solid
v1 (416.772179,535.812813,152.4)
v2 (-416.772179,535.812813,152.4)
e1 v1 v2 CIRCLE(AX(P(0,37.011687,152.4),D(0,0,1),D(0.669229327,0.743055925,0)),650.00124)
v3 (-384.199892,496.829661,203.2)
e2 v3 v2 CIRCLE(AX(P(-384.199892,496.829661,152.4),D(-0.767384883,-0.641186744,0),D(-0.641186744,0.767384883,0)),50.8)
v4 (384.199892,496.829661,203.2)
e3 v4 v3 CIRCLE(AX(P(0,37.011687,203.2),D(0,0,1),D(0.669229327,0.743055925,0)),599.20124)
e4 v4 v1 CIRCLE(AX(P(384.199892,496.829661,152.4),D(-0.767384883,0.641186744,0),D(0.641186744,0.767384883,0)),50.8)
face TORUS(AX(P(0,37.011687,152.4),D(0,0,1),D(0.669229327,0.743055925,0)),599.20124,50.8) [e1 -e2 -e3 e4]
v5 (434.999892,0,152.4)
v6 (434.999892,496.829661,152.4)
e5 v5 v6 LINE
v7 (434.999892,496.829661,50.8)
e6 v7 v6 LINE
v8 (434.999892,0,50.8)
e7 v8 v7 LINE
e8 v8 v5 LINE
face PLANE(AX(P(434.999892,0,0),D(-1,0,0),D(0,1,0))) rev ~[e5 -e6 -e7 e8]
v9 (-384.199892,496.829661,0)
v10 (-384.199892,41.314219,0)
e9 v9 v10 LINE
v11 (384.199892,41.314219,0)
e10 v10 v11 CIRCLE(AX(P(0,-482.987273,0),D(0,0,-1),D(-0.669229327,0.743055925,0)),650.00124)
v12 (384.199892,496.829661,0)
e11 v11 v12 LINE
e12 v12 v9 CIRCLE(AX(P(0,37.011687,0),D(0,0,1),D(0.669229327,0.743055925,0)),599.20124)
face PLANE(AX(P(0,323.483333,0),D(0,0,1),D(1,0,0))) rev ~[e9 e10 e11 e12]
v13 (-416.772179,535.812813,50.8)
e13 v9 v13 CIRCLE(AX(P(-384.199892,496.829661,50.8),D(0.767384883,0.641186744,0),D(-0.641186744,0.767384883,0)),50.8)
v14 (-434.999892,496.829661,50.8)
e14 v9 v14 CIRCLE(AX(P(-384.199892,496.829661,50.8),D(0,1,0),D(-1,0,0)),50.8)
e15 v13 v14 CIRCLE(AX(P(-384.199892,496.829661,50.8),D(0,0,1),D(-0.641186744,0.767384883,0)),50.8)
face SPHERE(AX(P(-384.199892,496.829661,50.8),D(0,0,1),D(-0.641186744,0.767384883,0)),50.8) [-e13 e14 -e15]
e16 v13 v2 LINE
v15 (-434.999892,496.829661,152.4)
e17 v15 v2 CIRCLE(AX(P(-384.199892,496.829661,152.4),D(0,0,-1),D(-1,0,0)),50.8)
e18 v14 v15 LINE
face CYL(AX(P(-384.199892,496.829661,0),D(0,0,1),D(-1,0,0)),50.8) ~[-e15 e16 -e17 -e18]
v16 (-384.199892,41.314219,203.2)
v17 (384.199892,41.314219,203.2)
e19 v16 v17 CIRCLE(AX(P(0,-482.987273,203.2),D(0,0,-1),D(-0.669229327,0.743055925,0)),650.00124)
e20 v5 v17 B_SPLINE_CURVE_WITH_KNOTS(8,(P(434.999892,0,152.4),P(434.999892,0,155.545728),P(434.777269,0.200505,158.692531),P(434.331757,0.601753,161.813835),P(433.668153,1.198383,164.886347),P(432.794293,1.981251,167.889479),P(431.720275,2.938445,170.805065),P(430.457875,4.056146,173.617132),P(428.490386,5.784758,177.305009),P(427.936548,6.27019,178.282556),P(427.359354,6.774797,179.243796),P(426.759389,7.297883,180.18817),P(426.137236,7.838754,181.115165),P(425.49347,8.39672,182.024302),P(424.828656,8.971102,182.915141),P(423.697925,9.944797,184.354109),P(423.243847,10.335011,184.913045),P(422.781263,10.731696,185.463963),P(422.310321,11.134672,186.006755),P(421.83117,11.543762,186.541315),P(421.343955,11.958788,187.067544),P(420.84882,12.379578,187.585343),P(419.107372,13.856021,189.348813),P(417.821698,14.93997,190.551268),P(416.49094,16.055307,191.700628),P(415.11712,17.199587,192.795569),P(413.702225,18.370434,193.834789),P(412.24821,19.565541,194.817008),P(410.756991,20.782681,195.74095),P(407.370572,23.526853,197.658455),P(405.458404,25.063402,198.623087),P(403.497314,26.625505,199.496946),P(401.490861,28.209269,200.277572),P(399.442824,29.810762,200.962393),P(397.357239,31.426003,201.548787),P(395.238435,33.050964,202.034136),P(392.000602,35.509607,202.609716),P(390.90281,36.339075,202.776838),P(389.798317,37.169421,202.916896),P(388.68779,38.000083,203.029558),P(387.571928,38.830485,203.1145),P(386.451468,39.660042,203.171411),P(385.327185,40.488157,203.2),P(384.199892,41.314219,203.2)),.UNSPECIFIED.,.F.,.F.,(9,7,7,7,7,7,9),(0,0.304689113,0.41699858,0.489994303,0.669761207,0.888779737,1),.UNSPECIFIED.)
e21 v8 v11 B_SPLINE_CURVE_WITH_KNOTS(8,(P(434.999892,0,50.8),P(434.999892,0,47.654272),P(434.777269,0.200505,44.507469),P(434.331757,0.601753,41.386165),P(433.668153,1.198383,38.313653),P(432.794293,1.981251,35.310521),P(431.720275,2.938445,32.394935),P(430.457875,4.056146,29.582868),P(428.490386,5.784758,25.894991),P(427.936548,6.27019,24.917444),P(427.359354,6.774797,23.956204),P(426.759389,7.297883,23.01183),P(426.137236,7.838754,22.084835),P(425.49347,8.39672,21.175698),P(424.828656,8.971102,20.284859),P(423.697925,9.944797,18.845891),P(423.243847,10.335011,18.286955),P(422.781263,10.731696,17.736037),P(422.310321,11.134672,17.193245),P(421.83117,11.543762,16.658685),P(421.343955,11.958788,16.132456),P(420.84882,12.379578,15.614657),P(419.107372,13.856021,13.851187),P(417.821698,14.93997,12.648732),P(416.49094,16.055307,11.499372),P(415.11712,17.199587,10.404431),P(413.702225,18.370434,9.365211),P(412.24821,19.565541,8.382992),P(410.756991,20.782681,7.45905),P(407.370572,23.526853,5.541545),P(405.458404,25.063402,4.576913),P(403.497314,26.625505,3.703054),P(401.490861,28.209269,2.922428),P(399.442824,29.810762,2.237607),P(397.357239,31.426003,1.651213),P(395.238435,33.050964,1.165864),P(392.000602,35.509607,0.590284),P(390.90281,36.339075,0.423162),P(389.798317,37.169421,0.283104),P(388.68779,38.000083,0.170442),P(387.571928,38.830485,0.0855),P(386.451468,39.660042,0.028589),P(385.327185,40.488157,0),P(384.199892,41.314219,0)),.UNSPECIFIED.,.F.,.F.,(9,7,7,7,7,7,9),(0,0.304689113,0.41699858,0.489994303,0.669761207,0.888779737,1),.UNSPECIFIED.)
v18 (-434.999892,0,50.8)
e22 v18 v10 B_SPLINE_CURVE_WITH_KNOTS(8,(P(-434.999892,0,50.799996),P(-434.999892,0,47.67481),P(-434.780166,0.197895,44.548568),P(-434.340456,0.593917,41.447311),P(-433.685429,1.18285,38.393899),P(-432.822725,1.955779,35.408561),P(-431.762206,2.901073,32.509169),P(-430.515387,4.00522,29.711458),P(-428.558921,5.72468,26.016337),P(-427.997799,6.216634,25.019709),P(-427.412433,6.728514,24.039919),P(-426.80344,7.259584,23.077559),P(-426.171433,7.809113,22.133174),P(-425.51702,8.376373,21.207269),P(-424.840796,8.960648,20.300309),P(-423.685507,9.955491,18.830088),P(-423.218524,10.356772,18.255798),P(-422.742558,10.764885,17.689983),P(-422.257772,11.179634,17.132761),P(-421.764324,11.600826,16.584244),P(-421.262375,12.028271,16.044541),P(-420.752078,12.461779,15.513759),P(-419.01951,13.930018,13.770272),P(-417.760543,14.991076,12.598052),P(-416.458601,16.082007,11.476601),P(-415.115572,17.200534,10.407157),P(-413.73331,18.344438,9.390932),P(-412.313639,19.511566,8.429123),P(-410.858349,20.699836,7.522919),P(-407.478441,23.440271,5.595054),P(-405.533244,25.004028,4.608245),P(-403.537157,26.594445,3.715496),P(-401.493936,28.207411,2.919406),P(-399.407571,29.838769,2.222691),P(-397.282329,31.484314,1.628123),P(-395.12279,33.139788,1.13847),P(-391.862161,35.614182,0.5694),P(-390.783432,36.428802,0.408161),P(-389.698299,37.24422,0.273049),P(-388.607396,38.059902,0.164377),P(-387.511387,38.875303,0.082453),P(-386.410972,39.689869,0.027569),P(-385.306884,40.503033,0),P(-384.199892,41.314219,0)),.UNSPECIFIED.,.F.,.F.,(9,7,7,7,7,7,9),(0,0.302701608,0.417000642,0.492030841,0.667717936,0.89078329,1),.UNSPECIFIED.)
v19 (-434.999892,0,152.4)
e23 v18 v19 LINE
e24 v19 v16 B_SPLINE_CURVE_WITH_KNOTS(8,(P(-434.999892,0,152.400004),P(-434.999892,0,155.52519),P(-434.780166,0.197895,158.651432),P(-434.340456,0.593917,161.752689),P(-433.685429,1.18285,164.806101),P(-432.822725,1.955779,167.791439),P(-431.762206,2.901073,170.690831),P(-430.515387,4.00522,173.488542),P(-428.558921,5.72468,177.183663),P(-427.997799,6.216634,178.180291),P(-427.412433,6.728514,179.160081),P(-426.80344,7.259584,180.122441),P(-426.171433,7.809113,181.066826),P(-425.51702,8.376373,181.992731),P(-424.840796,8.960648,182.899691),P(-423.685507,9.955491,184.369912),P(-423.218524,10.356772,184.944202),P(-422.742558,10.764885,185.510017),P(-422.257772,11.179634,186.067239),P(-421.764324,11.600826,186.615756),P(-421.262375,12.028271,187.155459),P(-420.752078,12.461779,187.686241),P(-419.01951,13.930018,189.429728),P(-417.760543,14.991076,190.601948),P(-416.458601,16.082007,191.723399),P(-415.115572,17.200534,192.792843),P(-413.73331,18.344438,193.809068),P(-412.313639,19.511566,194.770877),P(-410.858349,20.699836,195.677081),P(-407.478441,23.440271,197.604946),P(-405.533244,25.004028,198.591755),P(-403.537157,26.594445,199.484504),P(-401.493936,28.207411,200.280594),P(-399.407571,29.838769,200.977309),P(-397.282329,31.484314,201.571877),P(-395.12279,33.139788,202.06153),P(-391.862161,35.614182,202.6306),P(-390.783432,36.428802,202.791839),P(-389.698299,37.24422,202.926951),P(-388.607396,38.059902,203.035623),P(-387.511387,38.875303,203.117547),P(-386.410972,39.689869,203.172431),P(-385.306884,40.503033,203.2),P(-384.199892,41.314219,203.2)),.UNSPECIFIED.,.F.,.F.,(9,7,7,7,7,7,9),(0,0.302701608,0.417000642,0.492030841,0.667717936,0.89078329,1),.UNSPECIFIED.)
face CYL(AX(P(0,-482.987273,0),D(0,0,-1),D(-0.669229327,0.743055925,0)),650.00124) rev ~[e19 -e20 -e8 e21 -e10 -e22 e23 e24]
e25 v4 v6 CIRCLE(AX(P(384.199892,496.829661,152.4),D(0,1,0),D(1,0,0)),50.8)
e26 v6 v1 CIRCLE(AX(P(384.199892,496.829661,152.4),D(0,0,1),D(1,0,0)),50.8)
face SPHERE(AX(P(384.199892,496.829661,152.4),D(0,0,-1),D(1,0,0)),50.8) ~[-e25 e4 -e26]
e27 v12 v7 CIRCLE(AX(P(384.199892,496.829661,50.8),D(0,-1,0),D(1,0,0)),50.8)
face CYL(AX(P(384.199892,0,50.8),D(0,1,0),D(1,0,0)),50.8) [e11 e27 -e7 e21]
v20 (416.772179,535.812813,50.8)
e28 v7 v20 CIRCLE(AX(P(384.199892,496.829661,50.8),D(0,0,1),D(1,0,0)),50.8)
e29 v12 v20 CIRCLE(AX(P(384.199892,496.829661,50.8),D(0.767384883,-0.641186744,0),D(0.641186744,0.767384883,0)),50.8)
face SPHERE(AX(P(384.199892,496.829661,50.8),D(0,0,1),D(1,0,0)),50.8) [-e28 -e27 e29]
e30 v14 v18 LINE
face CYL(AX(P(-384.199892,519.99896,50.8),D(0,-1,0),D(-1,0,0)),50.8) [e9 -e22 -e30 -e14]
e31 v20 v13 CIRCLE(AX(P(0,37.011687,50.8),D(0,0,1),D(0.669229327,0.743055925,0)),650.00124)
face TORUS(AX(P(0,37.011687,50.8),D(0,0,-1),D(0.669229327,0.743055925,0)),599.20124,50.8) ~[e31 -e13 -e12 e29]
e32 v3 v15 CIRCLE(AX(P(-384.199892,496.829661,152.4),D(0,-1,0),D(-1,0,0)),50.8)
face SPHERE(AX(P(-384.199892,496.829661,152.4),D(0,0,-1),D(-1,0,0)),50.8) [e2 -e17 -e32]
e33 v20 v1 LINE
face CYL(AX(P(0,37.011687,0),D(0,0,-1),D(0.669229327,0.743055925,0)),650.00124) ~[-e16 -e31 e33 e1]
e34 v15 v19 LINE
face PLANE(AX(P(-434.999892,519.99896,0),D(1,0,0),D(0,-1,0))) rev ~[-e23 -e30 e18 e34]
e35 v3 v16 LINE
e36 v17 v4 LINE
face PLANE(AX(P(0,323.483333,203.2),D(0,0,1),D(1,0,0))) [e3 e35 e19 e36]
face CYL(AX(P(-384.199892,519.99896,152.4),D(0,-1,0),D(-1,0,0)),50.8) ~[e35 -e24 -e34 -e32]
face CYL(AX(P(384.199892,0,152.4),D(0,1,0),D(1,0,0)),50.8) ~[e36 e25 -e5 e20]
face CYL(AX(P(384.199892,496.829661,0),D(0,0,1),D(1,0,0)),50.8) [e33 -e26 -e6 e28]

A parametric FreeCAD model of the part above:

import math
import FreeCAD as App
import Part
import Sketcher
from FreeCAD import Vector
Q = App.Units.Quantity


def edges_at(feature, points):
    """Names of the edges that pass closest to the given points."""
    edges = feature.Shape.Edges
    near = lambda p: min(range(len(edges)), key=lambda i: edges[i].distToShape(Part.Vertex(*p))[0])
    return sorted({f"Edge{near(p) + 1}" for p in points})

doc = App.newDocument("Part")
body = doc.addObject("PartDesign::Body", "Body")

# Sketch on XY plane
sketch1 = doc.addObject("Sketcher::SketchObject", "Sketch")
body.addObject(sketch1)
sketch1.AttachmentSupport = (doc.XY_Plane, [""])
sketch1.MapMode = "FlatFace"
sketch1.addGeometry([
    Part.LineSegment(Vector(-435, 520, 0), Vector(-435, 0, 0)),
    Part.ArcOfCircle(Part.Circle(Vector(0, -483, 0), Vector(0, 0, 1), 650), math.radians(48), math.radians(132)),
    Part.LineSegment(Vector(435, 0, 0), Vector(435, 520, 0)),
    Part.ArcOfCircle(Part.Circle(Vector(0, 37, 0), Vector(0, 0, 1), 650), math.radians(48), math.radians(132)),
], False)
sketch1.addConstraint([
    Sketcher.Constraint("Coincident", 0, 2, 1, 2),
    Sketcher.Constraint("Coincident", 1, 1, 2, 1),
    Sketcher.Constraint("Coincident", 2, 2, 3, 1),
    Sketcher.Constraint("Coincident", 3, 2, 0, 1),
    Sketcher.Constraint("Vertical", 0),
    Sketcher.Constraint("Vertical", 2),
    Sketcher.Constraint("Equal", 1, 3),
    Sketcher.Constraint("PointOnObject", 1, 3, -2),
    Sketcher.Constraint("PointOnObject", 3, 3, -2),
    Sketcher.Constraint("PointOnObject", 0, 2, -1),
    Sketcher.Constraint("Radius", 1, Q("25.5906 in")),
    Sketcher.Constraint("DistanceY", 0, 2, 0, 1, Q("20.4724 in")),
    Sketcher.Constraint("DistanceY", -1, 1, 2, 2, Q("20.4724 in")),
    Sketcher.Constraint("DistanceX", 0, 2, -1, 1, Q("434.999892 mm")),
])
pad1 = doc.addObject("PartDesign::Pad", "Pad")
body.addObject(pad1)
pad1.Profile = sketch1
pad1.Length = Q("8 in")
doc.recompute()

fillet = doc.addObject("PartDesign::Fillet", "Fillet")
body.addObject(fillet)
fillet.Base = (pad1, edges_at(pad1, [
    (0, 687.013, 203.2),
    (-435, 519.999, 101.6),
    (0, 687.013, 0),
    (435, 519.999, 101.6),
    (435, 259.999, 0),
    (435, 259.999, 203.2),
    (-435, 259.999, 203.2),
    (-435, 259.999, 0),
]))
fillet.Radius = Q("2 in")

doc.recompute()
